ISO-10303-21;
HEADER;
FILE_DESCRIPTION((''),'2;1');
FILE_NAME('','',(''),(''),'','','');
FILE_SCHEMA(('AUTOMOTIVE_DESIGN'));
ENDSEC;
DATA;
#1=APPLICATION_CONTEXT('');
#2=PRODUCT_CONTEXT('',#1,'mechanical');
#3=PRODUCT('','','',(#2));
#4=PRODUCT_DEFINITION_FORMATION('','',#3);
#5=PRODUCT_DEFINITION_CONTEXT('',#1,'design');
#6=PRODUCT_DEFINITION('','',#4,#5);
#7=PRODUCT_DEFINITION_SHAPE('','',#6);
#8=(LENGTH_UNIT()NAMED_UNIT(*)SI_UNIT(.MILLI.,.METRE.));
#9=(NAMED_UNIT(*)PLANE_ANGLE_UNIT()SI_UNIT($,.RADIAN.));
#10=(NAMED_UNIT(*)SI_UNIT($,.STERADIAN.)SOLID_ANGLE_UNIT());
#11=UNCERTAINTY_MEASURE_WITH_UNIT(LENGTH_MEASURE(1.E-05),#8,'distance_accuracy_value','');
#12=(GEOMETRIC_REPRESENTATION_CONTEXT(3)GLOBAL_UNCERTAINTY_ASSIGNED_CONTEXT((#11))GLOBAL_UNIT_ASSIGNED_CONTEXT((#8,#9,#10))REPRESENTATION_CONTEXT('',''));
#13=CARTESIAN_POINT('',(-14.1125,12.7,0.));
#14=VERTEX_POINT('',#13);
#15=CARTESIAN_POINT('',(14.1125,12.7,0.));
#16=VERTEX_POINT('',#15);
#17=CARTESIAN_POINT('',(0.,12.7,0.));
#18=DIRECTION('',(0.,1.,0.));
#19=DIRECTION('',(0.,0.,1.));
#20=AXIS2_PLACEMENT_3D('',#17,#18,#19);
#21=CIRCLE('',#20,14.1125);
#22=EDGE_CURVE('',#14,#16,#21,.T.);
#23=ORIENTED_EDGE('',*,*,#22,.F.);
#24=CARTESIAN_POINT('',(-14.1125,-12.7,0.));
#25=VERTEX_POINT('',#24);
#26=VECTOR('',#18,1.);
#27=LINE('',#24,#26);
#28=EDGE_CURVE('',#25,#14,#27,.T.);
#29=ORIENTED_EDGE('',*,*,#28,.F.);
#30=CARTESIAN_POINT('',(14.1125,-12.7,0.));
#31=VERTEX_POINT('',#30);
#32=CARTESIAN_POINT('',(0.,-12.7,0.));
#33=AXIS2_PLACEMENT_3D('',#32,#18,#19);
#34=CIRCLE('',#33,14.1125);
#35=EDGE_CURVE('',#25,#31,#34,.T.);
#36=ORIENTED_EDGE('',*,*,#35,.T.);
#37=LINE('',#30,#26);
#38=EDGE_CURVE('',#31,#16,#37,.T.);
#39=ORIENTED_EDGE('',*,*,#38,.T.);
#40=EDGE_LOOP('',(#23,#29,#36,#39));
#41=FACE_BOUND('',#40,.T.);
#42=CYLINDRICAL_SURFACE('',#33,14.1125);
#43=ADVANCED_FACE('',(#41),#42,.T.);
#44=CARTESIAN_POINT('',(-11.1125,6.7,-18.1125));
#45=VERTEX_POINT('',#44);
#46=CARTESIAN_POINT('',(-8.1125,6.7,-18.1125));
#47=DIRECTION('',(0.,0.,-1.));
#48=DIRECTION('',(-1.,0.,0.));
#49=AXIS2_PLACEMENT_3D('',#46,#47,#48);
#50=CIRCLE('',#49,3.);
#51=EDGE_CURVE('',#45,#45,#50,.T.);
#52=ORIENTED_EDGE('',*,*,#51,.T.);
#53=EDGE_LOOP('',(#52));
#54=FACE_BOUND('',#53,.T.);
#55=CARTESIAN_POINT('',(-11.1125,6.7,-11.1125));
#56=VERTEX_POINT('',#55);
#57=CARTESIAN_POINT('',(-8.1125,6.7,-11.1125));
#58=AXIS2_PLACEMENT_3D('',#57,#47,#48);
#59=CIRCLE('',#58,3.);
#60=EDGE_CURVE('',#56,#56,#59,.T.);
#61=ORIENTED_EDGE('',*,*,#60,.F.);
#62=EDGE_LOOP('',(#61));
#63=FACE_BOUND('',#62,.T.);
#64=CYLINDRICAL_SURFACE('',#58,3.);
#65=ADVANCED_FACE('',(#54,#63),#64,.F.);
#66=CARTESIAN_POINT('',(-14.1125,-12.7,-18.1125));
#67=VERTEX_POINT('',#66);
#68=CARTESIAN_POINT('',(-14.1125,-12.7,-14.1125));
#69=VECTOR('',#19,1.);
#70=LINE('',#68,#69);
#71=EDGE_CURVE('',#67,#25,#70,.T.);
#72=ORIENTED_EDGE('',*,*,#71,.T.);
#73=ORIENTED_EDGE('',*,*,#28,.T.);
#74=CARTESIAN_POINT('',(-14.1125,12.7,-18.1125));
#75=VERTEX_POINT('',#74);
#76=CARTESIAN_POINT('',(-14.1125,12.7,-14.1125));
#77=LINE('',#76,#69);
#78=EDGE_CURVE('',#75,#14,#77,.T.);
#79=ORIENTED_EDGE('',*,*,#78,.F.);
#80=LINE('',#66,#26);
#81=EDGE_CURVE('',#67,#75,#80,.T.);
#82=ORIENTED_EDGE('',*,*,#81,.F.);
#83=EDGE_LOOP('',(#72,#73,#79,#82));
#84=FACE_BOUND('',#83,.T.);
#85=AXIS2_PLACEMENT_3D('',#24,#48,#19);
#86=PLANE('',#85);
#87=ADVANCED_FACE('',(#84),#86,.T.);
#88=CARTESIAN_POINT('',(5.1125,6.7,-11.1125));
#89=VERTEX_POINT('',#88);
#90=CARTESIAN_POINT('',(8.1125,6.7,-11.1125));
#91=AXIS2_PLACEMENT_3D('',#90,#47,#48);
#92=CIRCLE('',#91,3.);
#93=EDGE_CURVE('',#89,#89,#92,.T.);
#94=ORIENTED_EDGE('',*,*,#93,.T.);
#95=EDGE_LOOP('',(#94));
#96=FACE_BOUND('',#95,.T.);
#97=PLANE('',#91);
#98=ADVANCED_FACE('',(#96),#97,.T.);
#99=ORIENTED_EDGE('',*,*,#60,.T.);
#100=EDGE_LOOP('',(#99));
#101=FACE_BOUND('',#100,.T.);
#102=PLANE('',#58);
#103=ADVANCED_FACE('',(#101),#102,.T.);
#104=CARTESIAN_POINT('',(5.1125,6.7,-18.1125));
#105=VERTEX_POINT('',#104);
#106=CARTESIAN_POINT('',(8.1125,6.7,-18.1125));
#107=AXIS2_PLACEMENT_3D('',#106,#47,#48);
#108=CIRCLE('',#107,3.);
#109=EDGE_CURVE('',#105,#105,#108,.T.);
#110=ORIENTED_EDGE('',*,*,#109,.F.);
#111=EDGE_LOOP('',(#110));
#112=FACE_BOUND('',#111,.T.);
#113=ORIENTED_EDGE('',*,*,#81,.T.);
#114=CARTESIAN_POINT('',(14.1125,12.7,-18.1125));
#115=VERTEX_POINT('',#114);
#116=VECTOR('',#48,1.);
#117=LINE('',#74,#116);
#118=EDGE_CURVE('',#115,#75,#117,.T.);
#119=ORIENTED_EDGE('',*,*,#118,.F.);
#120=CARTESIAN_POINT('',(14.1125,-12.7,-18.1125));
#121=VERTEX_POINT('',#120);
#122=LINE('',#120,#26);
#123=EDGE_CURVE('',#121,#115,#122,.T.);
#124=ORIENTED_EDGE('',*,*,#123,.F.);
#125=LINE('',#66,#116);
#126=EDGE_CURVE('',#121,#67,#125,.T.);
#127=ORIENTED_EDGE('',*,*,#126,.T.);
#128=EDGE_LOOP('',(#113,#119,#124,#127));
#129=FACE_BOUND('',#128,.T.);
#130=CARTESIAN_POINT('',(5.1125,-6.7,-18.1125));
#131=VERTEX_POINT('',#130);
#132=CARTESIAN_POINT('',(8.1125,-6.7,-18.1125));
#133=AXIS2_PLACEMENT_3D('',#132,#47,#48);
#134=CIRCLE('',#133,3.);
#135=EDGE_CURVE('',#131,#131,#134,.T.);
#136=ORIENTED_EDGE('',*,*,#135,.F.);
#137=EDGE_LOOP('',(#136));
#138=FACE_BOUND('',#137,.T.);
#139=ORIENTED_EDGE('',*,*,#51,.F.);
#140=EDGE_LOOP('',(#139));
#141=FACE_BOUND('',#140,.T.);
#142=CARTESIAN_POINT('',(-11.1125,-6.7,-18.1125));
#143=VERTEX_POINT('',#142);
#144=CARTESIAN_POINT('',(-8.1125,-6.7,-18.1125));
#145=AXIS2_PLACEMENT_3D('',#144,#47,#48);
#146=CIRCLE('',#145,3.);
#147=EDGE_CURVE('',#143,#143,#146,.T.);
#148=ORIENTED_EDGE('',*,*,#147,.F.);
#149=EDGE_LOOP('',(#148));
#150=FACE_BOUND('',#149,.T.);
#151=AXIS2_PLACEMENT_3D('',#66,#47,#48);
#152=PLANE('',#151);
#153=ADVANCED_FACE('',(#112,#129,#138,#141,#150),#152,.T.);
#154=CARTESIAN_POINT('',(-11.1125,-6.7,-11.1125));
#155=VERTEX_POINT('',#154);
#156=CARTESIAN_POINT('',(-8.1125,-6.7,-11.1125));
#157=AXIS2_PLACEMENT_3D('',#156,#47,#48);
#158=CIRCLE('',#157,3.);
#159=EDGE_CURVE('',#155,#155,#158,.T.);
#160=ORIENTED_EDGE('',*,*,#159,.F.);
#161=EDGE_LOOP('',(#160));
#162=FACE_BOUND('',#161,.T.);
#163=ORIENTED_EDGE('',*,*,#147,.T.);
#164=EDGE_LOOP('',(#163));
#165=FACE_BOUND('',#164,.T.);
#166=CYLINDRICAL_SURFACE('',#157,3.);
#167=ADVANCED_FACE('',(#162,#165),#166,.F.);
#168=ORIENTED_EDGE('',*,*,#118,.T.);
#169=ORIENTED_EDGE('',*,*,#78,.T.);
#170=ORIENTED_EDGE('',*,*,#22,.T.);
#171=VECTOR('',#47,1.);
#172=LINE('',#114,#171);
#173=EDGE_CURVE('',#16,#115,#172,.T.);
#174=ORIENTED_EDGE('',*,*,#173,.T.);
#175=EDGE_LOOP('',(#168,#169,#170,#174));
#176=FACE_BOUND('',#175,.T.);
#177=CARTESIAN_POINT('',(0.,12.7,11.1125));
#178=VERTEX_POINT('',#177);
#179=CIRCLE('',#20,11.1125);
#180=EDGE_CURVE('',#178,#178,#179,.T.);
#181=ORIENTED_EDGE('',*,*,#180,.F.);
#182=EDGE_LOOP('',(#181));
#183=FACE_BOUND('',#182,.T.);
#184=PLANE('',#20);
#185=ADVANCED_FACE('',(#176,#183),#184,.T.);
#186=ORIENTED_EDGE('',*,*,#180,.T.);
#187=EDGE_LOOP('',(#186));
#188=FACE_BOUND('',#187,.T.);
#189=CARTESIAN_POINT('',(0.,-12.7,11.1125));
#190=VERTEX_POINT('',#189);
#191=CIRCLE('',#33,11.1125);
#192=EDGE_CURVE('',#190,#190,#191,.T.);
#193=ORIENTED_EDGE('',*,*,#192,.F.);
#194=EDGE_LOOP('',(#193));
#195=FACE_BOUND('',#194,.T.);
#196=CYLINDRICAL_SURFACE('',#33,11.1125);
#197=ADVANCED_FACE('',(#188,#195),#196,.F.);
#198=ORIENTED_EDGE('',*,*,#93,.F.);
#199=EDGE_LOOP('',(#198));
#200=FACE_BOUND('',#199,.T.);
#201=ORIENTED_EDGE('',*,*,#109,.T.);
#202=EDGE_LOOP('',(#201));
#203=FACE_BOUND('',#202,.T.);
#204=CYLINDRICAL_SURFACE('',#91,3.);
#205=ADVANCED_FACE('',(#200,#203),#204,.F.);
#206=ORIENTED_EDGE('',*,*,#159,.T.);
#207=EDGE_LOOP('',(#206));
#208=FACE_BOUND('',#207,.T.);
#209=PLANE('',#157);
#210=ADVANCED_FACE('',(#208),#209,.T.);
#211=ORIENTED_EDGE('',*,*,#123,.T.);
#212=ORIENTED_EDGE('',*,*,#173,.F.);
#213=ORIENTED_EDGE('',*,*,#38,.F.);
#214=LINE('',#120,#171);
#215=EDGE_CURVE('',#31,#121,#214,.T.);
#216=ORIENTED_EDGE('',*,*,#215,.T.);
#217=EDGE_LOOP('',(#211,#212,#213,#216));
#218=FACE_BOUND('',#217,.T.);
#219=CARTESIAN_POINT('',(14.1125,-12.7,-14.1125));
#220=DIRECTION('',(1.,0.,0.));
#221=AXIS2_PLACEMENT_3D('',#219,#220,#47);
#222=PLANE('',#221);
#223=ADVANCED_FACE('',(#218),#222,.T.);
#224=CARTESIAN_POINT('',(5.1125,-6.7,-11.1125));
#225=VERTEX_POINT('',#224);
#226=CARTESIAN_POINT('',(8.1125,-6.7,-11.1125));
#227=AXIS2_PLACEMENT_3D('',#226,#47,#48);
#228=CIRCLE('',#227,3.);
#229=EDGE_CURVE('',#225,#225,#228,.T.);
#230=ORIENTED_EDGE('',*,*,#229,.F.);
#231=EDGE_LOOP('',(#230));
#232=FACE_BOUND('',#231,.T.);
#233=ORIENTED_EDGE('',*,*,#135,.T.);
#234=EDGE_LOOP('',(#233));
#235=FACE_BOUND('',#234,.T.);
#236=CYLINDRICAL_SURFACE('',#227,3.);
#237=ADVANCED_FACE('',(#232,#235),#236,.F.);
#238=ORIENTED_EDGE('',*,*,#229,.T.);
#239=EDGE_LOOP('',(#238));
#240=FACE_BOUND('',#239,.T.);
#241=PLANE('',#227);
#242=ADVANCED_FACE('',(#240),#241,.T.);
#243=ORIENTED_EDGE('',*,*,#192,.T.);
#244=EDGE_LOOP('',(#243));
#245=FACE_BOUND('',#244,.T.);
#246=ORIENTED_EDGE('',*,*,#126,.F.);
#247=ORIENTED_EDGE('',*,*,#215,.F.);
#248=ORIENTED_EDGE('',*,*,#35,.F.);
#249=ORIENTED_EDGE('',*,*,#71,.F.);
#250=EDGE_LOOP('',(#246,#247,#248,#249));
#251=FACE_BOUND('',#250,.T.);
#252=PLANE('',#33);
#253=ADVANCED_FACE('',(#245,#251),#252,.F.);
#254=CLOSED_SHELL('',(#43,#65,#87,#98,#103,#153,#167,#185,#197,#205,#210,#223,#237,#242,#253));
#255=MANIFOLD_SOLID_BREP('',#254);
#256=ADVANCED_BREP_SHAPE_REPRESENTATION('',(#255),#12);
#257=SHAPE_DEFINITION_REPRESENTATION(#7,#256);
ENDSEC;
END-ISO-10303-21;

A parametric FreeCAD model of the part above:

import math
import FreeCAD as App
import Part
import Sketcher

V = App.Vector

doc = App.newDocument("Part")
body = doc.addObject("PartDesign::Body", "Body")

sketch1 = body.newObject("Sketcher::SketchObject", "Sketch")
sketch1.AttachmentSupport = (doc.getObject("XZ_Plane"), [""])
sketch1.MapMode = "FlatFace"
sketch1.addGeometry(Part.LineSegment(V(-14, -18, 0), V(-14, 0, 0)), False)
sketch1.addGeometry(Part.ArcOfCircle(Part.Circle(V(0, 0, 0), V(0, 0, 1), 14), math.radians(0), math.radians(180)), False)
sketch1.addGeometry(Part.LineSegment(V(14, 0, 0), V(14, -18, 0)), False)
sketch1.addGeometry(Part.LineSegment(V(14, -18, 0), V(-14, -18, 0)), False)
sketch1.addGeometry(Part.Circle(V(0, 0, 0), V(0, 0, 1), 11), False)
sketch1.addConstraint(Sketcher.Constraint("Tangent", 0, 2, 1, 2))
sketch1.addConstraint(Sketcher.Constraint("Tangent", 1, 1, 2, 1))
sketch1.addConstraint(Sketcher.Constraint("Coincident", 2, 2, 3, 1))
sketch1.addConstraint(Sketcher.Constraint("Coincident", 3, 2, 0, 1))
sketch1.addConstraint(Sketcher.Constraint("Vertical", 0))
sketch1.addConstraint(Sketcher.Constraint("Vertical", 2))
sketch1.addConstraint(Sketcher.Constraint("Horizontal", 3))
sketch1.addConstraint(Sketcher.Constraint("Coincident", 1, 3, -1, 1))
sketch1.addConstraint(Sketcher.Constraint("Coincident", 4, 3, -1, 1))
sketch1.addConstraint(Sketcher.Constraint("Diameter", 4, 22.225))
sketch1.addConstraint(Sketcher.Constraint("Radius", 1, 14.1125))
sketch1.addConstraint(Sketcher.Constraint("DistanceY", 0, 1, 0, 2, 18.1125))
pad1 = body.newObject("PartDesign::Pad", "Pad")
pad1.Profile = sketch1
pad1.Type = "TwoLengths"
pad1.Length = 12.7
pad1.Length2 = 12.7
pad1.Reversed = True

sketch2 = body.newObject("Sketcher::SketchObject", "Sketch001")
sketch2.AttachmentSupport = (doc.getObject("XY_Plane"), [""])
sketch2.MapMode = "FlatFace"
sketch2.AttachmentOffset = App.Placement(V(0, 0, -18.1125), App.Rotation())
sketch2.addGeometry(Part.Circle(V(-8.1, -6.7, 0), V(0, 0, 1), 3), False)
sketch2.addGeometry(Part.Circle(V(8.1, -6.7, 0), V(0, 0, 1), 3), False)
sketch2.addGeometry(Part.Circle(V(8.1, 6.7, 0), V(0, 0, 1), 3), False)
sketch2.addGeometry(Part.Circle(V(-8.1, 6.7, 0), V(0, 0, 1), 3), False)
sketch2.addConstraint(Sketcher.Constraint("Equal", 0, 1))
sketch2.addConstraint(Sketcher.Constraint("Equal", 1, 2))
sketch2.addConstraint(Sketcher.Constraint("Equal", 2, 3))
sketch2.addConstraint(Sketcher.Constraint("Symmetric", 0, 3, 2, 3, -1, 1))
sketch2.addConstraint(Sketcher.Constraint("Symmetric", 1, 3, 3, 3, -1, 1))
sketch2.addConstraint(Sketcher.Constraint("Symmetric", 0, 3, 1, 3, -2))
sketch2.addConstraint(Sketcher.Constraint("Diameter", 0, 6.0))
sketch2.addConstraint(Sketcher.Constraint("DistanceY", 0, 3, -1, 1, 6.7))
sketch2.addConstraint(Sketcher.Constraint("DistanceX", 0, 3, 1, 3, 16.225))
pocket1 = body.newObject("PartDesign::Pocket", "Pocket")
pocket1.Profile = sketch2
pocket1.Length = 7
pocket1.Reversed = True

doc.recompute()
